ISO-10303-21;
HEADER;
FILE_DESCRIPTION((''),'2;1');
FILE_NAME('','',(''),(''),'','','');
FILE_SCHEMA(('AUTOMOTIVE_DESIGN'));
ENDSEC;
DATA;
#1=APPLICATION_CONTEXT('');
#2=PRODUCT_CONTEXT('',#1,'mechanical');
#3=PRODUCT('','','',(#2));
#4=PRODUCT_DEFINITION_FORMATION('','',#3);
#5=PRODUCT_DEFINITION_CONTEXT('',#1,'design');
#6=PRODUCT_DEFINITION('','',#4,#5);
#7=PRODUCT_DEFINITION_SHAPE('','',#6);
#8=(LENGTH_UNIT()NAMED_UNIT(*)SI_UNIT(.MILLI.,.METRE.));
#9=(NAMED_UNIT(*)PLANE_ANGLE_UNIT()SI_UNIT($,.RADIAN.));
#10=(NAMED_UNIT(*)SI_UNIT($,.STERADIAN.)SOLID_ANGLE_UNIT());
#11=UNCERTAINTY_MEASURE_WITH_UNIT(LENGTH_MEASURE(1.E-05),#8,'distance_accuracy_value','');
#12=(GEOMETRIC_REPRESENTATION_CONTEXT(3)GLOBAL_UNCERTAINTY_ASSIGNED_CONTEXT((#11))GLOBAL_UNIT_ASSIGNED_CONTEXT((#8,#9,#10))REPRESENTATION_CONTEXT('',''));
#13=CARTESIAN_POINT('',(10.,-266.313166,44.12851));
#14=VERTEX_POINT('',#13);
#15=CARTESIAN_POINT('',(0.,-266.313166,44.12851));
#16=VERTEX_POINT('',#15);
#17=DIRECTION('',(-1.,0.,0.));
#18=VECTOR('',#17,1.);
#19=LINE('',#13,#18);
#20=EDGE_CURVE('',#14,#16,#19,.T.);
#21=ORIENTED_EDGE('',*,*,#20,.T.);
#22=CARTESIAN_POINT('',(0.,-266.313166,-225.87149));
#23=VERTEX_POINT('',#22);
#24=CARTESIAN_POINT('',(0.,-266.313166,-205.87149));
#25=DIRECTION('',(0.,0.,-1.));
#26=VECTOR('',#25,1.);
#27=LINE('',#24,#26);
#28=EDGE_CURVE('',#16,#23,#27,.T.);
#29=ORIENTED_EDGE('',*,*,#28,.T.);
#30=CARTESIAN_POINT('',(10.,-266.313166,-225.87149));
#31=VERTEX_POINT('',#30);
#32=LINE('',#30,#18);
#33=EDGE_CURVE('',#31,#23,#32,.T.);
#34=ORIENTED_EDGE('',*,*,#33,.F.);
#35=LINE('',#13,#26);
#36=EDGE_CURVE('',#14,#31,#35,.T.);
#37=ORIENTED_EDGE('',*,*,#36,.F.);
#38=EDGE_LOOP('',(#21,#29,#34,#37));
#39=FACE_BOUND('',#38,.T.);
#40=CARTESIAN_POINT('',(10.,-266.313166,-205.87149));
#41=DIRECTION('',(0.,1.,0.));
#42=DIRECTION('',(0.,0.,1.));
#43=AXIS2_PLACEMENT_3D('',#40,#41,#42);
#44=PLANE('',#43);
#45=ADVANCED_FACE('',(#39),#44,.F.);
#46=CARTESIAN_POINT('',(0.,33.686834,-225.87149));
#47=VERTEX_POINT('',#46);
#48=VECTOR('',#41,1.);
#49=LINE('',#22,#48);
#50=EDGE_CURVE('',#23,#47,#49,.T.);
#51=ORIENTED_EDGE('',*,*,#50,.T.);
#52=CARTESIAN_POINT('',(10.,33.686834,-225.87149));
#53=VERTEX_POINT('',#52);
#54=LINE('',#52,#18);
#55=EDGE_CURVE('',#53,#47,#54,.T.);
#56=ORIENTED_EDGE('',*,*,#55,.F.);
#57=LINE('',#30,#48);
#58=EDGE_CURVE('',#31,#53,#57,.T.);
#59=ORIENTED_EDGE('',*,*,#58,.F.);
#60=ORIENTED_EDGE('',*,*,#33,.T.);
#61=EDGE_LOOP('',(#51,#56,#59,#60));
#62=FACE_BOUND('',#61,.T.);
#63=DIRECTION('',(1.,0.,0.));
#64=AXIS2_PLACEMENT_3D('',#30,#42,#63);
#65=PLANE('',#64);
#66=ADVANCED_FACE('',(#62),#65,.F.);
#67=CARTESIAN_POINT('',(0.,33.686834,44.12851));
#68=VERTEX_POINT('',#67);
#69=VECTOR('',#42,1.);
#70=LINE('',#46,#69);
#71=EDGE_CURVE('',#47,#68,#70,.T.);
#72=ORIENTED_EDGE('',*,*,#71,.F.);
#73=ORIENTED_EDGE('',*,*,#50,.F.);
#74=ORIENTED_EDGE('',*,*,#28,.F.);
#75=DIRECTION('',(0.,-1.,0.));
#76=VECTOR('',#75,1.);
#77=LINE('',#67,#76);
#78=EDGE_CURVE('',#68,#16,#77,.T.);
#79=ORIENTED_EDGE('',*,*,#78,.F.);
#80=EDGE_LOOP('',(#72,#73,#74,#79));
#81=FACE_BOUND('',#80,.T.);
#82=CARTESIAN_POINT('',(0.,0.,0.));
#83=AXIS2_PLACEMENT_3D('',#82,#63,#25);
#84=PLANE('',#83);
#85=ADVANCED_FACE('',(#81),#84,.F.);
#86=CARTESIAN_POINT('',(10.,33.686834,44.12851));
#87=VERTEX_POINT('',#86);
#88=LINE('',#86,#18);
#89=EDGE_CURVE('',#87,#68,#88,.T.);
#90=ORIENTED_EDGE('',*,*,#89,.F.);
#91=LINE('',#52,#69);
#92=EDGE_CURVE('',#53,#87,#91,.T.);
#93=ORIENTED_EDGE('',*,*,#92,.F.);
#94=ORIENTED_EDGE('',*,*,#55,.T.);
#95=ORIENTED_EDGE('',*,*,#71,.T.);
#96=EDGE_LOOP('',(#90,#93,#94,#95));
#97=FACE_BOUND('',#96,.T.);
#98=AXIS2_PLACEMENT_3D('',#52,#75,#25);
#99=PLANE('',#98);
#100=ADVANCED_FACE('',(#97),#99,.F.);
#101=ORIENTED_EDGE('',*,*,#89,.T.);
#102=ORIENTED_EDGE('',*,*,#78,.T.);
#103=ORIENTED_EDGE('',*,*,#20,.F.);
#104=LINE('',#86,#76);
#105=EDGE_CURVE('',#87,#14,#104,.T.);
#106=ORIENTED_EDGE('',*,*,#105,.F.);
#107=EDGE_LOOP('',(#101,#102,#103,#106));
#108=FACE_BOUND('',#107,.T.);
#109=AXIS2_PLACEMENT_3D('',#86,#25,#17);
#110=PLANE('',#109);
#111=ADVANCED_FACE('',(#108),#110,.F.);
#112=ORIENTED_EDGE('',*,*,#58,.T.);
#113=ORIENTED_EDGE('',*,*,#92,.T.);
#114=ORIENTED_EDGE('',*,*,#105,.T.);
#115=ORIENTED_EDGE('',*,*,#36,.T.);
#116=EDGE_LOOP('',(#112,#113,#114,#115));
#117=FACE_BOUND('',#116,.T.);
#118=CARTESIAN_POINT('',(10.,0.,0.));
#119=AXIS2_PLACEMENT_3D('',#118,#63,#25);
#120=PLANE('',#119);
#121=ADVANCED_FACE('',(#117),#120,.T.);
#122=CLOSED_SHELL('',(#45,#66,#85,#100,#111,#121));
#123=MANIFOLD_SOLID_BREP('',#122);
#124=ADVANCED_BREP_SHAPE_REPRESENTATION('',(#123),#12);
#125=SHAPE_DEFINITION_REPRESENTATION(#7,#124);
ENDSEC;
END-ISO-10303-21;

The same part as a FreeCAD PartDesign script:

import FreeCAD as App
import Part
import Sketcher

V = App.Vector


def add_polygon(sketch, points):
    """Adds a closed chain of lines whose ends are joined by coincident constraints."""
    first, n = sketch.GeometryCount, len(points)
    for a, b in zip(points, points[1:] + points[:1]):
        sketch.addGeometry(Part.LineSegment(App.Vector(*a, 0), App.Vector(*b, 0)), False)
    for i in range(n):
        sketch.addConstraint(Sketcher.Constraint("Coincident", first + i, 2, first + (i + 1) % n, 1))

doc = App.newDocument("Part")
body = doc.addObject("PartDesign::Body", "Body")

sketch1 = body.newObject("Sketcher::SketchObject", "Sketch")
sketch1.AttachmentSupport = (doc.getObject("YZ_Plane"), [""])
sketch1.MapMode = "FlatFace"
add_polygon(sketch1, [(34, 44), (-266, 44), (-266, -226), (34, -226)])
sketch1.addConstraint([
    Sketcher.Constraint("Horizontal", 0),
    Sketcher.Constraint("Vertical", 1),
    Sketcher.Constraint("Horizontal", 2),
    Sketcher.Constraint("Vertical", 3),
    Sketcher.Constraint("DistanceX", 0, 2, 0, 1, 300.0),
    Sketcher.Constraint("DistanceY", 1, 2, 1, 1, 270.0),
    Sketcher.Constraint("DistanceY", -1, 1, 0, 2, 44.12851),
    Sketcher.Constraint("DistanceX", 0, 2, -1, 1, 266.313166),
])
pad1 = body.newObject("PartDesign::Pad", "Pad")
pad1.Profile = sketch1
pad1.Length = 10

doc.recompute()
